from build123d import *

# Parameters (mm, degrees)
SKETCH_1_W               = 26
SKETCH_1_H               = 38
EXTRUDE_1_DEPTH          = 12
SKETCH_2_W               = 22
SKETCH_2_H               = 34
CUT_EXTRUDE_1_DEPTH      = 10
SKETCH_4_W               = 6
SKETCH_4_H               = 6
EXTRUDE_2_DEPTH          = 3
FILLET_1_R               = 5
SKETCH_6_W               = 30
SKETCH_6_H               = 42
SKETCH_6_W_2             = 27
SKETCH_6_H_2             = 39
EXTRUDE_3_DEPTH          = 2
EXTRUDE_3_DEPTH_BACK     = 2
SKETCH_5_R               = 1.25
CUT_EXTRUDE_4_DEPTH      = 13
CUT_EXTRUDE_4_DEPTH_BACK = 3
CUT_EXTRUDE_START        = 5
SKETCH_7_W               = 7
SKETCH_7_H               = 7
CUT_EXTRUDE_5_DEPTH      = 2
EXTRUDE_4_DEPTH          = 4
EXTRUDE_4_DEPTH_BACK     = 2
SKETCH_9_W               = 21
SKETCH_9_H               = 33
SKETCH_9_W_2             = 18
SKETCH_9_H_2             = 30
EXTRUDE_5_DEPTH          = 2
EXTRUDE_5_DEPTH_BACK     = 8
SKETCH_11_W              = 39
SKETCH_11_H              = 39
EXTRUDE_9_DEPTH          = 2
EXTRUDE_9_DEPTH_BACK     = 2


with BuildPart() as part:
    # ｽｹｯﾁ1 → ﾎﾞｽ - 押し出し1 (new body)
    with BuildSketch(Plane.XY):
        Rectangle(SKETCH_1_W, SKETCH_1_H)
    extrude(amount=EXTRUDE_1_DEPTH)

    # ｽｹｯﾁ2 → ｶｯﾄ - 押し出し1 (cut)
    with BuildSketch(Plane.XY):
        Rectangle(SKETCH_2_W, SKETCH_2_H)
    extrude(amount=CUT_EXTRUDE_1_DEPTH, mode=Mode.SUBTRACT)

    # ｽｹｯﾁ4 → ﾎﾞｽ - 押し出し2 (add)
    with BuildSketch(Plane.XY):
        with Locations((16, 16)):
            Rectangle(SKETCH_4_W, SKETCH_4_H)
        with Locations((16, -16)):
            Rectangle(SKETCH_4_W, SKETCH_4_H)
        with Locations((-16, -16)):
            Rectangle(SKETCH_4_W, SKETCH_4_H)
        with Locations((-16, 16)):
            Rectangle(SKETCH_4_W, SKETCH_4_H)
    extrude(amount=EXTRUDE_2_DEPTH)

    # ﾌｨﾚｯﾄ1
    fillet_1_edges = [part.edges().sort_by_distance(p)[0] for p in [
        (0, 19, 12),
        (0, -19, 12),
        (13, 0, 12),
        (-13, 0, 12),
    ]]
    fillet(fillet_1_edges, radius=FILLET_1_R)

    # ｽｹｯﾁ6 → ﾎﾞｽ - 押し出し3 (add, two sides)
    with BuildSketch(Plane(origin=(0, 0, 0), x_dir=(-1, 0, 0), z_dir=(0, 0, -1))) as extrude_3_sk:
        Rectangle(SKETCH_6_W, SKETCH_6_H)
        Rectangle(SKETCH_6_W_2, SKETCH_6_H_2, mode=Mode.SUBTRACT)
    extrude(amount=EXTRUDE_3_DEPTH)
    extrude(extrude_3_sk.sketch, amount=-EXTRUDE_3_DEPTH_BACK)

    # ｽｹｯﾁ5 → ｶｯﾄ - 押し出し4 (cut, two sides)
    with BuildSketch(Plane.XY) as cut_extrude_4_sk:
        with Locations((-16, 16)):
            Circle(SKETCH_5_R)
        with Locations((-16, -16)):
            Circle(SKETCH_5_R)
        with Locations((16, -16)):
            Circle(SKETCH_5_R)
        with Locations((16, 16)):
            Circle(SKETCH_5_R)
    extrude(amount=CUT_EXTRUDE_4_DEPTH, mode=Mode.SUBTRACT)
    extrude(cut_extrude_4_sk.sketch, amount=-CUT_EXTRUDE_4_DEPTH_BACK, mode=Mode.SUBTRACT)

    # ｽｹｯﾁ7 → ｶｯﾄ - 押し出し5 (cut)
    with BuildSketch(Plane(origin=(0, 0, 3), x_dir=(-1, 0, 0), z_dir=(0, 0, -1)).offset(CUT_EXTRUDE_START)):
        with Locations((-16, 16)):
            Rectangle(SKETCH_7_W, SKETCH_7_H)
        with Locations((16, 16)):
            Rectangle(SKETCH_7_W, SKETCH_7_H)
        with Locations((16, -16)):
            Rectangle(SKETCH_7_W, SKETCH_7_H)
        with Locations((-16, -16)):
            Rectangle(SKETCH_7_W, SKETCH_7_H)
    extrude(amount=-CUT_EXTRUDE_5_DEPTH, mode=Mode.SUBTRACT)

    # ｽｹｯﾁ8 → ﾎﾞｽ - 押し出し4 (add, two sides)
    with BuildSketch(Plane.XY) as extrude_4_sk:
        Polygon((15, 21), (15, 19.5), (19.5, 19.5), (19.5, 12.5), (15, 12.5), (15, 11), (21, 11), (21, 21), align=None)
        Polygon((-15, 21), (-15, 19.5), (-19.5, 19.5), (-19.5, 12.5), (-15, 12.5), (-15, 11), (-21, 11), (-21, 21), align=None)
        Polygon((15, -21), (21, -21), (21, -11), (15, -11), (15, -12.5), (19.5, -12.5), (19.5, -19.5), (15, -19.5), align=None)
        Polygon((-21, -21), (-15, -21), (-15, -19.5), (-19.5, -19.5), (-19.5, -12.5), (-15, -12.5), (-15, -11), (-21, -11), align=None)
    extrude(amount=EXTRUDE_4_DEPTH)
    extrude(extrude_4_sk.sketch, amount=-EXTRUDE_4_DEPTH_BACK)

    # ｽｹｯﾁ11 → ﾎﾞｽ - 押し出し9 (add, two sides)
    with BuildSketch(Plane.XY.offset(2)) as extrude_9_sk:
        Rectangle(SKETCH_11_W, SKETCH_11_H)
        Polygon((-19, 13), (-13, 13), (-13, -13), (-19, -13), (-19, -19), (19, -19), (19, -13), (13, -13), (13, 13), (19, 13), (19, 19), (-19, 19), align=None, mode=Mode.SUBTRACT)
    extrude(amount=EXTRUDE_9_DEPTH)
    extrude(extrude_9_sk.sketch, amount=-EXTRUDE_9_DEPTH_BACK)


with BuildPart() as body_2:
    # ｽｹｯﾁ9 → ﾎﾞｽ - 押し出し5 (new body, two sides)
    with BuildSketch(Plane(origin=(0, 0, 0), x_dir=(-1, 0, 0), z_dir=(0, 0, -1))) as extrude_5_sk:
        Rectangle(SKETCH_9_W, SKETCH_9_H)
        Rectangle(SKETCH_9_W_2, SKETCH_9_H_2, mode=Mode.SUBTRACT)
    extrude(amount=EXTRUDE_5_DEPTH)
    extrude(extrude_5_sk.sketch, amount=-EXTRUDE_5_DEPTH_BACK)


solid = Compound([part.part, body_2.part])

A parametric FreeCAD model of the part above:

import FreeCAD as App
import Part
import Sketcher
from FreeCAD import Vector
Q = App.Units.Quantity


def edges_at(feature, points):
    """Names of the edges that pass closest to the given points."""
    edges = feature.Shape.Edges
    near = lambda p: min(range(len(edges)), key=lambda i: edges[i].distToShape(Part.Vertex(*p))[0])
    return sorted({f"Edge{near(p) + 1}" for p in points})


def add_polygon(sketch, points):
    """Adds a closed chain of lines whose ends are joined by coincident constraints."""
    first, n = sketch.GeometryCount, len(points)
    for a, b in zip(points, points[1:] + points[:1]):
        sketch.addGeometry(Part.LineSegment(App.Vector(*a, 0), App.Vector(*b, 0)), False)
    for i in range(n):
        sketch.addConstraint(Sketcher.Constraint("Coincident", first + i, 2, first + (i + 1) % n, 1))

doc = App.newDocument("Part")
body = doc.addObject("PartDesign::Body", "Body")

sketch1 = body.newObject("Sketcher::SketchObject", "Sketch")
sketch1.AttachmentSupport = (doc.getObject("XY_Plane"), [""])
sketch1.MapMode = "FlatFace"
add_polygon(sketch1, [(-13, 19), (-13, -19), (13, -19), (13, 19)])
sketch1.addConstraint([
    Sketcher.Constraint("Vertical", 0),
    Sketcher.Constraint("Horizontal", 1),
    Sketcher.Constraint("Vertical", 2),
    Sketcher.Constraint("Horizontal", 3),
    Sketcher.Constraint("Symmetric", 0, 2, 2, 2, -1, 1),
    Sketcher.Constraint("DistanceX", 1, 1, 1, 2, Q("26 mm")),
    Sketcher.Constraint("DistanceY", 0, 2, 0, 1, Q("38 mm")),
])
pad1 = body.newObject("PartDesign::Pad", "Pad")
pad1.Profile = sketch1
pad1.Length = 12

sketch2 = body.newObject("Sketcher::SketchObject", "Sketch001")
sketch2.AttachmentSupport = (doc.getObject("XY_Plane"), [""])
sketch2.MapMode = "FlatFace"
add_polygon(sketch2, [(-11, 17), (-11, -17), (11, -17), (11, 17)])
sketch2.addConstraint([
    Sketcher.Constraint("Vertical", 0),
    Sketcher.Constraint("Horizontal", 1),
    Sketcher.Constraint("Vertical", 2),
    Sketcher.Constraint("Horizontal", 3),
    Sketcher.Constraint("Symmetric", 0, 2, 2, 2, -1, 1),
    Sketcher.Constraint("DistanceX", 1, 1, 1, 2, Q("22 mm")),
    Sketcher.Constraint("DistanceY", 0, 2, 0, 1, Q("34 mm")),
])
pocket1 = body.newObject("PartDesign::Pocket", "Pocket")
pocket1.Profile = sketch2
pocket1.Length = 10
pocket1.Reversed = True

sketch3 = body.newObject("Sketcher::SketchObject", "Sketch002")
sketch3.AttachmentSupport = (doc.getObject("XY_Plane"), [""])
sketch3.MapMode = "FlatFace"
add_polygon(sketch3, [(13, 19), (13, 13), (19, 13), (19, 19)])
add_polygon(sketch3, [(13, -13), (13, -19), (19, -19), (19, -13)])
add_polygon(sketch3, [(-19, -13), (-19, -19), (-13, -19), (-13, -13)])
add_polygon(sketch3, [(-19, 19), (-19, 13), (-13, 13), (-13, 19)])
sketch3.addConstraint([
    Sketcher.Constraint("Vertical", 0),
    Sketcher.Constraint("Horizontal", 1),
    Sketcher.Constraint("Vertical", 2),
    Sketcher.Constraint("Horizontal", 3),
    Sketcher.Constraint("Vertical", 4),
    Sketcher.Constraint("Horizontal", 5),
    Sketcher.Constraint("Vertical", 6),
    Sketcher.Constraint("Horizontal", 7),
    Sketcher.Constraint("Vertical", 8),
    Sketcher.Constraint("Horizontal", 9),
    Sketcher.Constraint("Vertical", 10),
    Sketcher.Constraint("Horizontal", 11),
    Sketcher.Constraint("Vertical", 12),
    Sketcher.Constraint("Horizontal", 13),
    Sketcher.Constraint("Vertical", 14),
    Sketcher.Constraint("Horizontal", 15),
    Sketcher.Constraint("Symmetric", 2, 2, 8, 2, -1, 1),
    Sketcher.Constraint("Symmetric", 0, 2, 10, 2, -1, 1),
    Sketcher.Constraint("Symmetric", 6, 2, 12, 2, -1, 1),
    Sketcher.Constraint("Symmetric", 4, 2, 14, 2, -1, 1),
    Sketcher.Constraint("Symmetric", 5, 2, 8, 2, -2),
    Sketcher.Constraint("Symmetric", 7, 2, 10, 2, -2),
    Sketcher.Constraint("Equal", 15, 0),
    Sketcher.Constraint("DistanceX", 1, 1, 1, 2, Q("6 mm")),
    Sketcher.Constraint("DistanceX", -1, 1, 0, 2, Q("13 mm")),
    Sketcher.Constraint("DistanceY", -1, 1, 0, 2, Q("13 mm")),
])
pad2 = body.newObject("PartDesign::Pad", "Pad001")
pad2.Profile = sketch3
pad2.Length = 3
doc.recompute()

fillet = body.newObject("PartDesign::Fillet", "Fillet")
fillet.Base = (pad2, edges_at(pad2, [
    (0, 19, 12),
    (0, -19, 12),
    (13, 0, 12),
    (-13, 0, 12),
]))
fillet.Radius = 5

sketch4 = body.newObject("Sketcher::SketchObject", "Sketch003")
sketch4.AttachmentSupport = (doc.getObject("XY_Plane"), [""])
sketch4.MapMode = "FlatFace"
add_polygon(sketch4, [(15, 21), (15, -21), (-15, -21), (-15, 21)])
add_polygon(sketch4, [(-14, -20), (14, -20), (14, 20), (-14, 20)])
sketch4.addConstraint([
    Sketcher.Constraint("Vertical", 0),
    Sketcher.Constraint("Horizontal", 1),
    Sketcher.Constraint("Vertical", 2),
    Sketcher.Constraint("Horizontal", 3),
    Sketcher.Constraint("Horizontal", 4),
    Sketcher.Constraint("Vertical", 5),
    Sketcher.Constraint("Horizontal", 6),
    Sketcher.Constraint("Vertical", 7),
    Sketcher.Constraint("Symmetric", 0, 2, 2, 2, -1, 1),
    Sketcher.Constraint("Symmetric", 4, 2, 6, 2, -1, 1),
    Sketcher.Constraint("DistanceX", 1, 2, 1, 1, Q("30 mm")),
    Sketcher.Constraint("DistanceX", 4, 1, 4, 2, Q("27 mm")),
    Sketcher.Constraint("DistanceY", 0, 2, 0, 1, Q("42 mm")),
    Sketcher.Constraint("DistanceY", 5, 1, 5, 2, Q("39 mm")),
])
pad3 = body.newObject("PartDesign::Pad", "Pad002")
pad3.Profile = sketch4
pad3.Type = "TwoLengths"
pad3.Length = 2
pad3.Length2 = 2
pad3.Reversed = True

sketch5 = body.newObject("Sketcher::SketchObject", "Sketch004")
sketch5.AttachmentSupport = (doc.getObject("XY_Plane"), [""])
sketch5.MapMode = "FlatFace"
sketch5.addGeometry([
    Part.Circle(Vector(-16, 16, 0), Vector(0, 0, 1), 1.2),
    Part.Circle(Vector(-16, -16, 0), Vector(0, 0, 1), 1.2),
    Part.Circle(Vector(16, -16, 0), Vector(0, 0, 1), 1.2),
    Part.Circle(Vector(16, 16, 0), Vector(0, 0, 1), 1.2),
], False)
sketch5.addConstraint([
    Sketcher.Constraint("Equal", 0, 1),
    Sketcher.Constraint("Equal", 1, 2),
    Sketcher.Constraint("Equal", 2, 3),
    Sketcher.Constraint("Symmetric", 0, 3, 2, 3, -1, 1),
    Sketcher.Constraint("Symmetric", 1, 3, 3, 3, -1, 1),
    Sketcher.Constraint("Symmetric", 1, 3, 2, 3, -2),
    Sketcher.Constraint("Diameter", 0, Q("2.5 mm")),
    Sketcher.Constraint("DistanceX", 0, 3, -1, 1, Q("16 mm")),
    Sketcher.Constraint("DistanceY", -1, 1, 0, 3, Q("16 mm")),
])
pocket2 = body.newObject("PartDesign::Pocket", "Pocket001")
pocket2.Profile = sketch5
pocket2.Type = "ThroughAll"
pocket2.Midplane = True

sketch6 = body.newObject("Sketcher::SketchObject", "Sketch005")
sketch6.AttachmentSupport = (doc.getObject("XY_Plane"), [""])
sketch6.MapMode = "FlatFace"
sketch6.AttachmentOffset = App.Placement(Vector(0, 0, -2), App.Rotation())
add_polygon(sketch6, [(20, 20), (20, 12), (12, 12), (12, 20)])
add_polygon(sketch6, [(-12, 20), (-12, 12), (-20, 12), (-20, 20)])
add_polygon(sketch6, [(-12, -12), (-12, -20), (-20, -20), (-20, -12)])
add_polygon(sketch6, [(20, -12), (20, -20), (12, -20), (12, -12)])
sketch6.addConstraint([
    Sketcher.Constraint("Vertical", 0),
    Sketcher.Constraint("Horizontal", 1),
    Sketcher.Constraint("Vertical", 2),
    Sketcher.Constraint("Horizontal", 3),
    Sketcher.Constraint("Vertical", 4),
    Sketcher.Constraint("Horizontal", 5),
    Sketcher.Constraint("Vertical", 6),
    Sketcher.Constraint("Horizontal", 7),
    Sketcher.Constraint("Vertical", 8),
    Sketcher.Constraint("Horizontal", 9),
    Sketcher.Constraint("Vertical", 10),
    Sketcher.Constraint("Horizontal", 11),
    Sketcher.Constraint("Vertical", 12),
    Sketcher.Constraint("Horizontal", 13),
    Sketcher.Constraint("Vertical", 14),
    Sketcher.Constraint("Horizontal", 15),
    Sketcher.Constraint("Symmetric", 2, 2, 8, 2, -1, 1),
    Sketcher.Constraint("Symmetric", 0, 2, 10, 2, -1, 1),
    Sketcher.Constraint("Symmetric", 6, 2, 12, 2, -1, 1),
    Sketcher.Constraint("Symmetric", 4, 2, 14, 2, -1, 1),
    Sketcher.Constraint("Symmetric", 1, 2, 4, 2, -2),
    Sketcher.Constraint("Symmetric", 3, 2, 6, 2, -2),
    Sketcher.Constraint("Equal", 15, 0),
    Sketcher.Constraint("DistanceX", 1, 2, 1, 1, Q("7 mm")),
    Sketcher.Constraint("DistanceX", 4, 2, 1, 2, Q("25 mm")),
    Sketcher.Constraint("DistanceY", 8, 2, 4, 2, Q("32 mm")),
])
pocket3 = body.newObject("PartDesign::Pocket", "Pocket002")
pocket3.Profile = sketch6
pocket3.Length = 2
pocket3.Reversed = True

sketch7 = body.newObject("Sketcher::SketchObject", "Sketch006")
sketch7.AttachmentSupport = (doc.getObject("XY_Plane"), [""])
sketch7.MapMode = "FlatFace"
add_polygon(sketch7, [(15, 21), (15, 19.5), (19.5, 19.5), (19.5, 12.5), (15, 12.5), (15, 11), (21, 11), (21, 21)])
add_polygon(sketch7, [(-15, 19.5), (-15, 21), (-21, 21), (-21, 11), (-15, 11), (-15, 12.5), (-19.5, 12.5), (-19.5, 19.5)])
add_polygon(sketch7, [(15, -21), (21, -21), (21, -11), (15, -11), (15, -12.5), (19.5, -12.5), (19.5, -19.5), (15, -19.5)])
add_polygon(sketch7, [(-21, -21), (-15, -21), (-15, -19.5), (-19.5, -19.5), (-19.5, -12.5), (-15, -12.5), (-15, -11), (-21, -11)])
sketch7.addConstraint([
    Sketcher.Constraint("Vertical", 0),
    Sketcher.Constraint("Horizontal", 1),
    Sketcher.Constraint("Vertical", 2),
    Sketcher.Constraint("Horizontal", 3),
    Sketcher.Constraint("Vertical", 4),
    Sketcher.Constraint("Horizontal", 5),
    Sketcher.Constraint("Vertical", 6),
    Sketcher.Constraint("Horizontal", 7),
    Sketcher.Constraint("Vertical", 8),
    Sketcher.Constraint("Horizontal", 9),
    Sketcher.Constraint("Vertical", 10),
    Sketcher.Constraint("Horizontal", 11),
    Sketcher.Constraint("Vertical", 12),
    Sketcher.Constraint("Horizontal", 13),
    Sketcher.Constraint("Vertical", 14),
    Sketcher.Constraint("Horizontal", 15),
    Sketcher.Constraint("Horizontal", 16),
    Sketcher.Constraint("Vertical", 17),
    Sketcher.Constraint("Horizontal", 18),
    Sketcher.Constraint("Vertical", 19),
    Sketcher.Constraint("Horizontal", 20),
    Sketcher.Constraint("Vertical", 21),
    Sketcher.Constraint("Horizontal", 22),
    Sketcher.Constraint("Vertical", 23),
    Sketcher.Constraint("Horizontal", 24),
    Sketcher.Constraint("Vertical", 25),
    Sketcher.Constraint("Horizontal", 26),
    Sketcher.Constraint("Vertical", 27),
    Sketcher.Constraint("Horizontal", 28),
    Sketcher.Constraint("Vertical", 29),
    Sketcher.Constraint("Horizontal", 30),
    Sketcher.Constraint("Vertical", 31),
    Sketcher.Constraint("Symmetric", 9, 2, 16, 2, -1, 1),
    Sketcher.Constraint("Symmetric", 11, 2, 18, 2, -1, 1),
    Sketcher.Constraint("Symmetric", 13, 2, 20, 2, -1, 1),
    Sketcher.Constraint("Symmetric", 15, 2, 22, 2, -1, 1),
    Sketcher.Constraint("Symmetric", 7, 2, 24, 2, -1, 1),
    Sketcher.Constraint("Symmetric", 1, 2, 26, 2, -1, 1),
    Sketcher.Constraint("Symmetric", 3, 2, 28, 2, -1, 1),
    Sketcher.Constraint("Symmetric", 5, 2, 30, 2, -1, 1),
    Sketcher.Constraint("Symmetric", 7, 2, 8, 2, -2),
    Sketcher.Constraint("Symmetric", 5, 2, 10, 2, -2),
    Sketcher.Constraint("Symmetric", 3, 2, 12, 2, -2),
    Sketcher.Constraint("Symmetric", 1, 2, 14, 2, -2),
    Sketcher.Constraint("Vertical", 0, 2, 3, 2),
    Sketcher.Constraint("Equal", 0, 4),
    Sketcher.Constraint("DistanceX", 5, 1, 5, 2, Q("6 mm")),
    Sketcher.Constraint("DistanceY", 2, 2, 2, 1, Q("7 mm")),
    Sketcher.Constraint("DistanceY", 6, 1, 6, 2, Q("10 mm")),
    Sketcher.Constraint("DistanceX", 1, 1, 1, 2, Q("4.5 mm")),
    Sketcher.Constraint("DistanceX", -1, 1, 0, 2, Q("15 mm")),
    Sketcher.Constraint("DistanceY", -1, 1, 4, 2, Q("11 mm")),
])
pad4 = body.newObject("PartDesign::Pad", "Pad003")
pad4.Profile = sketch7
pad4.Type = "TwoLengths"
pad4.Length = 4
pad4.Length2 = 2

sketch8 = body.newObject("Sketcher::SketchObject", "Sketch007")
sketch8.AttachmentSupport = (doc.getObject("XY_Plane"), [""])
sketch8.MapMode = "FlatFace"
sketch8.AttachmentOffset = App.Placement(Vector(0, 0, 2), App.Rotation())
add_polygon(sketch8, [(-20, 20), (-20, -20), (20, -20), (20, 20)])
add_polygon(sketch8, [(-13, 13), (-19, 13), (-19, 19), (19, 19), (19, 13), (13, 13), (13, -13), (19, -13), (19, -19), (-19, -19), (-19, -13), (-13, -13)])
sketch8.addConstraint([
    Sketcher.Constraint("Vertical", 0),
    Sketcher.Constraint("Horizontal", 1),
    Sketcher.Constraint("Vertical", 2),
    Sketcher.Constraint("Horizontal", 3),
    Sketcher.Constraint("Horizontal", 4),
    Sketcher.Constraint("Vertical", 5),
    Sketcher.Constraint("Horizontal", 6),
    Sketcher.Constraint("Vertical", 7),
    Sketcher.Constraint("Horizontal", 8),
    Sketcher.Constraint("Vertical", 9),
    Sketcher.Constraint("Horizontal", 10),
    Sketcher.Constraint("Vertical", 11),
    Sketcher.Constraint("Horizontal", 12),
    Sketcher.Constraint("Vertical", 13),
    Sketcher.Constraint("Horizontal", 14),
    Sketcher.Constraint("Vertical", 15),
    Sketcher.Constraint("Symmetric", 0, 2, 2, 2, -1, 1),
    Sketcher.Constraint("Symmetric", 4, 2, 10, 2, -1, 1),
    Sketcher.Constraint("Symmetric", 6, 2, 12, 2, -1, 1),
    Sketcher.Constraint("Symmetric", 8, 2, 14, 2, -1, 1),
    Sketcher.Constraint("Symmetric", 4, 2, 7, 2, -2),
    Sketcher.Constraint("Equal", 3, 0),
    Sketcher.Constraint("Equal", 14, 5),
    Sketcher.Constraint("DistanceX", 1, 1, 1, 2, Q("39 mm")),
    Sketcher.Constraint("DistanceX", 4, 2, 4, 1, Q("6 mm")),
    Sketcher.Constraint("DistanceX", 6, 1, 6, 2, Q("38 mm")),
    Sketcher.Constraint("DistanceY", 9, 2, 9, 1, Q("26 mm")),
])
pad5 = body.newObject("PartDesign::Pad", "Pad004")
pad5.Profile = sketch8
pad5.Type = "TwoLengths"
pad5.Length = 2
pad5.Length2 = 2
body2 = doc.addObject("PartDesign::Body", "Body001")

sketch9 = body2.newObject("Sketcher::SketchObject", "Sketch008")
sketch9.AttachmentSupport = (doc.getObject("XY_Plane001"), [""])
sketch9.MapMode = "FlatFace"
add_polygon(sketch9, [(10, 16), (10, -16), (-10, -16), (-10, 16)])
add_polygon(sketch9, [(-9, -15), (9, -15), (9, 15), (-9, 15)])
sketch9.addConstraint([
    Sketcher.Constraint("Vertical", 0),
    Sketcher.Constraint("Horizontal", 1),
    Sketcher.Constraint("Vertical", 2),
    Sketcher.Constraint("Horizontal", 3),
    Sketcher.Constraint("Horizontal", 4),
    Sketcher.Constraint("Vertical", 5),
    Sketcher.Constraint("Horizontal", 6),
    Sketcher.Constraint("Vertical", 7),
    Sketcher.Constraint("Symmetric", 0, 2, 2, 2, -1, 1),
    Sketcher.Constraint("Symmetric", 4, 2, 6, 2, -1, 1),
    Sketcher.Constraint("DistanceX", 1, 2, 1, 1, Q("21 mm")),
    Sketcher.Constraint("DistanceX", 4, 1, 4, 2, Q("18 mm")),
    Sketcher.Constraint("DistanceY", 0, 2, 0, 1, Q("33 mm")),
    Sketcher.Constraint("DistanceY", 5, 1, 5, 2, Q("30 mm")),
])
pad6 = body2.newObject("PartDesign::Pad", "Pad005")
pad6.Profile = sketch9
pad6.Type = "TwoLengths"
pad6.Length = 2
pad6.Length2 = 8
pad6.Reversed = True

doc.recompute()
